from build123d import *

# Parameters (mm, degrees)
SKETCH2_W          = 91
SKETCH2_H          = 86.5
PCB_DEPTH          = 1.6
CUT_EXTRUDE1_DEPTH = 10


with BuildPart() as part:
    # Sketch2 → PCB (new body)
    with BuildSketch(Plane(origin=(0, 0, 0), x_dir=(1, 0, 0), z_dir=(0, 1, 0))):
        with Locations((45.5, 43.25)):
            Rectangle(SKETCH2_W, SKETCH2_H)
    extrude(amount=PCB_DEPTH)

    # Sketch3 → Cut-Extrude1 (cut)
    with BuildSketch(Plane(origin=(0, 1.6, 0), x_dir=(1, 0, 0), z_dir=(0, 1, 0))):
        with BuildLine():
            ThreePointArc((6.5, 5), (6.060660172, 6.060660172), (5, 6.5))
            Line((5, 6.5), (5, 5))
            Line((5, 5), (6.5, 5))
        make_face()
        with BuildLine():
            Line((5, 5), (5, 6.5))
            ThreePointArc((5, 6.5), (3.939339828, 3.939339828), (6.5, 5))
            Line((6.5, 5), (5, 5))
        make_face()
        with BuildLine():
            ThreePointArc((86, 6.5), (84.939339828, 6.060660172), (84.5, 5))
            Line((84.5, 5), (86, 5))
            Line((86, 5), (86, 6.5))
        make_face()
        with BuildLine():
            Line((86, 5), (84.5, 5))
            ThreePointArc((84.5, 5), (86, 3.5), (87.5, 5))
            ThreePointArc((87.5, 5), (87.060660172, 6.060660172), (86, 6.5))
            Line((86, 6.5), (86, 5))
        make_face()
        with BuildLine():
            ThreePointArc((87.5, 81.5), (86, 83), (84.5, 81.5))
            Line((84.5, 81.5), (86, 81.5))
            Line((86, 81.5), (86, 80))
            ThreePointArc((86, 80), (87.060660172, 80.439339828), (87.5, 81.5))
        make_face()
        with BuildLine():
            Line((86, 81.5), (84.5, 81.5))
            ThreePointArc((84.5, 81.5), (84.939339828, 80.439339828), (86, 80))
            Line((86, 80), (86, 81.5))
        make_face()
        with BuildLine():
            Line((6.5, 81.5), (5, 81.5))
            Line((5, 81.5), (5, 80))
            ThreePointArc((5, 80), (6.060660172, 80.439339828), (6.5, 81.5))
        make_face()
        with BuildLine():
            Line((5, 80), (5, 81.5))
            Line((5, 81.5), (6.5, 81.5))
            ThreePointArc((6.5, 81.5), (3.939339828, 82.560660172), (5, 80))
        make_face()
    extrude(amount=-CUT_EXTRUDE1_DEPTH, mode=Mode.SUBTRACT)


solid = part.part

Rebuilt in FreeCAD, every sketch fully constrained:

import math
import FreeCAD as App
import Part
import Sketcher
Q = App.Units.Quantity

doc = App.newDocument("Part")
params = doc.addObject("Spreadsheet::Sheet", "Params")
for row, (alias, value) in enumerate([
    ("sketch1_width", "91 mm"),
    ("sketch1_height", "86.5 mm"),
    ("pad1_length", "1.6 mm"),
    ("sketch2_radius", "1.5 mm"),
    ("pocket1_length", "10 mm"),
], start=1):
    params.set(f"A{row}", alias)
    params.set(f"B{row}", "=" + value)
    params.setAlias(f"B{row}", alias)

body = doc.addObject("PartDesign::Body", "Body")

# Sketch on XZ plane
sketch1 = doc.addObject("Sketcher::SketchObject", "Sketch")
body.addObject(sketch1)
sketch1.AttachmentSupport = (doc.XZ_Plane, [""])
sketch1.MapMode = "FlatFace"
sketch1.addGeometry(Part.LineSegment(App.Vector(0, -86, 0), App.Vector(0, 0, 0)), False)
sketch1.addGeometry(Part.LineSegment(App.Vector(0, 0, 0), App.Vector(91, 0, 0)), False)
sketch1.addGeometry(Part.LineSegment(App.Vector(91, 0, 0), App.Vector(91, -86, 0)), False)
sketch1.addGeometry(Part.LineSegment(App.Vector(91, -86, 0), App.Vector(0, -86, 0)), False)
sketch1.addConstraint(Sketcher.Constraint("Coincident", 0, 2, 1, 1))
sketch1.addConstraint(Sketcher.Constraint("Coincident", 1, 2, 2, 1))
sketch1.addConstraint(Sketcher.Constraint("Coincident", 2, 2, 3, 1))
sketch1.addConstraint(Sketcher.Constraint("Coincident", 3, 2, 0, 1))
sketch1.addConstraint(Sketcher.Constraint("Vertical", 0))
sketch1.addConstraint(Sketcher.Constraint("Horizontal", 1))
sketch1.addConstraint(Sketcher.Constraint("Vertical", 2))
sketch1.addConstraint(Sketcher.Constraint("Horizontal", 3))
sketch1.addConstraint(Sketcher.Constraint("Coincident", 0, 2, -1, 1))
sketch1.addConstraint(Sketcher.Constraint("DistanceX", 1, 1, 1, 2, Q("91 mm")))
sketch1.addConstraint(Sketcher.Constraint("DistanceY", 0, 1, 0, 2, Q("86.5 mm")))
sketch1.setExpression("Constraints[9]", "Params.sketch1_width")
sketch1.setExpression("Constraints[10]", "Params.sketch1_height")
pad1 = doc.addObject("PartDesign::Pad", "Pad")
body.addObject(pad1)
pad1.Profile = sketch1
pad1.setExpression("Length", "Params.pad1_length")
pad1.Reversed = True

# Sketch on XZ plane
sketch2 = doc.addObject("Sketcher::SketchObject", "Sketch001")
body.addObject(sketch2)
sketch2.AttachmentSupport = (doc.XZ_Plane, [""])
sketch2.MapMode = "FlatFace"
sketch2.AttachmentOffset = App.Placement(App.Vector(0, 0, -1.6), App.Rotation())
sketch2.addGeometry(Part.ArcOfCircle(Part.Circle(App.Vector(5, -5, 0), App.Vector(0, 0, 1), 1.5), math.radians(-90), math.radians(0)), False)
sketch2.addGeometry(Part.ArcOfCircle(Part.Circle(App.Vector(5, -5, 0), App.Vector(0, 0, 1), 1.5), math.radians(0), math.radians(270)), False)
sketch2.addGeometry(Part.ArcOfCircle(Part.Circle(App.Vector(86, -5, 0), App.Vector(0, 0, 1), 1.5), math.radians(180), math.radians(270)), False)
sketch2.addGeometry(Part.ArcOfCircle(Part.Circle(App.Vector(86, -5, 0), App.Vector(0, 0, 1), 1.5), math.radians(0), math.radians(180)), False)
sketch2.addGeometry(Part.ArcOfCircle(Part.Circle(App.Vector(86, -5, 0), App.Vector(0, 0, 1), 1.5), math.radians(-90), math.radians(0)), False)
sketch2.addGeometry(Part.ArcOfCircle(Part.Circle(App.Vector(86, -81.5, 0), App.Vector(0, 0, 1), 1.5), math.radians(180), math.radians(360)), False)
sketch2.addGeometry(Part.ArcOfCircle(Part.Circle(App.Vector(86, -81.5, 0), App.Vector(0, 0, 1), 1.5), math.radians(90), math.radians(180)), False)
sketch2.addGeometry(Part.ArcOfCircle(Part.Circle(App.Vector(86, -81.5, 0), App.Vector(0, 0, 1), 1.5), math.radians(0), math.radians(90)), False)
sketch2.addGeometry(Part.ArcOfCircle(Part.Circle(App.Vector(5, -81.5, 0), App.Vector(0, 0, 1), 1.5), math.radians(0), math.radians(90)), False)
sketch2.addGeometry(Part.ArcOfCircle(Part.Circle(App.Vector(5, -81.5, 0), App.Vector(0, 0, 1), 1.5), math.radians(90), math.radians(360)), False)
sketch2.addConstraint(Sketcher.Constraint("Tangent", 0, 1, 1, 2))
sketch2.addConstraint(Sketcher.Constraint("Coincident", 1, 1, 0, 2))
sketch2.addConstraint(Sketcher.Constraint("Tangent", 2, 1, 3, 2))
sketch2.addConstraint(Sketcher.Constraint("Tangent", 3, 1, 4, 2))
sketch2.addConstraint(Sketcher.Constraint("Tangent", 4, 1, 2, 2))
sketch2.addConstraint(Sketcher.Constraint("Tangent", 5, 1, 6, 2))
sketch2.addConstraint(Sketcher.Constraint("Tangent", 6, 1, 7, 2))
sketch2.addConstraint(Sketcher.Constraint("Tangent", 7, 1, 5, 2))
sketch2.addConstraint(Sketcher.Constraint("Tangent", 8, 1, 9, 2))
sketch2.addConstraint(Sketcher.Constraint("Coincident", 9, 1, 8, 2))
sketch2.addConstraint(Sketcher.Constraint("Equal", 1, 2))
sketch2.addConstraint(Sketcher.Constraint("Equal", 4, 5))
sketch2.addConstraint(Sketcher.Constraint("Equal", 7, 8))
sketch2.addConstraint(Sketcher.Constraint("Horizontal", 1, 3, 2, 3))
sketch2.addConstraint(Sketcher.Constraint("Horizontal", 7, 3, 8, 3))
sketch2.addConstraint(Sketcher.Constraint("Horizontal", 4, 3, 1, 1))
sketch2.addConstraint(Sketcher.Constraint("Horizontal", 1, 1, 2, 1))
sketch2.addConstraint(Sketcher.Constraint("Horizontal", 2, 1, 3, 1))
sketch2.addConstraint(Sketcher.Constraint("Horizontal", 9, 3, 5, 1))
sketch2.addConstraint(Sketcher.Constraint("Horizontal", 5, 1, 7, 1))
sketch2.addConstraint(Sketcher.Constraint("Horizontal", 7, 1, 8, 1))
sketch2.addConstraint(Sketcher.Constraint("Vertical", 4, 3, 5, 3))
sketch2.addConstraint(Sketcher.Constraint("Vertical", 1, 3, 8, 3))
sketch2.addConstraint(Sketcher.Constraint("Vertical", 9, 3, 0, 1))
sketch2.addConstraint(Sketcher.Constraint("Vertical", 7, 3, 4, 1))
sketch2.addConstraint(Sketcher.Constraint("Vertical", 4, 1, 6, 1))
sketch2.addConstraint(Sketcher.Constraint("Vertical", 0, 1, 9, 1))
sketch2.addConstraint(Sketcher.Constraint("Radius", 0, Q("1.5 mm")))
sketch2.addConstraint(Sketcher.Constraint("DistanceX", -1, 1, 0, 3, Q("5 mm")))
sketch2.addConstraint(Sketcher.Constraint("DistanceY", 0, 3, -1, 1, Q("5 mm")))
sketch2.addConstraint(Sketcher.Constraint("DistanceX", -1, 1, 2, 3, Q("86 mm")))
sketch2.addConstraint(Sketcher.Constraint("DistanceY", 6, 1, -1, 1, Q("80 mm")))
sketch2.setExpression("Constraints[27]", "Params.sketch2_radius")
pocket1 = doc.addObject("PartDesign::Pocket", "Pocket")
body.addObject(pocket1)
pocket1.Profile = sketch2
pocket1.setExpression("Length", "Params.pocket1_length")
pocket1.Reversed = True

doc.recompute()
